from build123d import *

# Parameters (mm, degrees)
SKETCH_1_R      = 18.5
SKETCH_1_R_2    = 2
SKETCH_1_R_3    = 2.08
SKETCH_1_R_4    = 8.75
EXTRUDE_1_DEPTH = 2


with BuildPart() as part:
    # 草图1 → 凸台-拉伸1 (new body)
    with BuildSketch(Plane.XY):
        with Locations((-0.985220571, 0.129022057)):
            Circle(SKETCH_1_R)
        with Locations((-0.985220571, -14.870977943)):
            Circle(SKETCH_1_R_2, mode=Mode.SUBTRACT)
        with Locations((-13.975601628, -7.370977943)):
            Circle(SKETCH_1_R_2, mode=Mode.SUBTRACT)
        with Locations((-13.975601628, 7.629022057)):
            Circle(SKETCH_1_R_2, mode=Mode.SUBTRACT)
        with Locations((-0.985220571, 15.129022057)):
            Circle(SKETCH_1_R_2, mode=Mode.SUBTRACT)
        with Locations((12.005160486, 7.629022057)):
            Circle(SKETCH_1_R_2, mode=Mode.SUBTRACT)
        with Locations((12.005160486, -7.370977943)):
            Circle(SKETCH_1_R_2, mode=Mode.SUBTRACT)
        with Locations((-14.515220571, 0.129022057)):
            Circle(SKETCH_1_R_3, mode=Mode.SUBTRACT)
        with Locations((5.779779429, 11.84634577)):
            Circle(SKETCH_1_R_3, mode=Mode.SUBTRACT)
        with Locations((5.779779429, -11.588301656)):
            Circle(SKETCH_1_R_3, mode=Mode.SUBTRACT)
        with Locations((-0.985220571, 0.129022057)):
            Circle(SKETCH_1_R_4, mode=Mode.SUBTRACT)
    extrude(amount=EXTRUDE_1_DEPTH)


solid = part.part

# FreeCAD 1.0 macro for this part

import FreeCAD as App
import Part
import Sketcher
from FreeCAD import Vector

doc = App.newDocument("Part")
body = doc.addObject("PartDesign::Body", "Body")

# Sketch on XY plane
sketch1 = body.newObject("Sketcher::SketchObject", "Sketch")
sketch1.AttachmentSupport = (doc.getObject("XY_Plane"), [""])
sketch1.MapMode = "FlatFace"
sketch1.addGeometry([
    Part.Circle(Vector(-0.985221, 0.129022, 0), Vector(0, 0, 1), 18.5),  # 0
    Part.Circle(Vector(-13.975602, -7.370978, 0), Vector(0, 0, 1), 2),  # 1
    Part.Circle(Vector(-0.985221, -14.870978, 0), Vector(0, 0, 1), 2),  # 2
    Part.Circle(Vector(5.779779, -11.588302, 0), Vector(0, 0, 1), 2.08),  # 3
    Part.Circle(Vector(12.00516, -7.370978, 0), Vector(0, 0, 1), 2),  # 4
    Part.Circle(Vector(-14.515221, 0.129022, 0), Vector(0, 0, 1), 2.08),  # 5
    Part.Circle(Vector(-13.975602, 7.629022, 0), Vector(0, 0, 1), 2),  # 6
    Part.Circle(Vector(-0.985221, 0.129022, 0), Vector(0, 0, 1), 8.75),  # 7
    Part.Circle(Vector(12.00516, 7.629022, 0), Vector(0, 0, 1), 2),  # 8
    Part.Circle(Vector(5.779779, 11.846346, 0), Vector(0, 0, 1), 2.08),  # 9
    Part.Circle(Vector(-0.985221, 15.129022, 0), Vector(0, 0, 1), 2),  # 10
], False)
sketch1.addConstraint([
    Sketcher.Constraint("Coincident", 7, 3, 0, 3),
    Sketcher.Constraint("Equal", 1, 2),
    Sketcher.Constraint("Equal", 2, 4),
    Sketcher.Constraint("Equal", 3, 5),
    Sketcher.Constraint("Equal", 4, 6),
    Sketcher.Constraint("Equal", 6, 8),
    Sketcher.Constraint("Equal", 5, 9),
    Sketcher.Constraint("Equal", 8, 10),
    Sketcher.Constraint("Horizontal", 1, 3, 4, 3),
    Sketcher.Constraint("Horizontal", 0, 3, 5, 3),
    Sketcher.Constraint("Horizontal", 6, 3, 8, 3),
    Sketcher.Constraint("Vertical", 0, 3, 2, 3),
    Sketcher.Constraint("Vertical", 1, 3, 6, 3),
    Sketcher.Constraint("Vertical", 4, 3, 8, 3),
    Sketcher.Constraint("Vertical", 3, 3, 9, 3),
    Sketcher.Constraint("Vertical", 7, 3, 10, 3),
    Sketcher.Constraint("Diameter", 0, 37.0),
    Sketcher.Constraint("Diameter", 1, 4.0),
    Sketcher.Constraint("Diameter", 7, 17.5),
    Sketcher.Constraint("Diameter", 3, 4.16),
    Sketcher.Constraint("DistanceY", 2, 3, 0, 3, 15.0),
    Sketcher.Constraint("DistanceY", 1, 3, 6, 3, 15.0),
    Sketcher.Constraint("DistanceY", 0, 3, 10, 3, 15.0),
    Sketcher.Constraint("DistanceY", 1, 3, 0, 3, 7.5),
    Sketcher.Constraint("DistanceX", 5, 3, 0, 3, 13.53),
    Sketcher.Constraint("DistanceX", 2, 3, 3, 3, 6.765),
    Sketcher.Constraint("DistanceX", 1, 3, -1, 1, 13.975602),
    Sketcher.Constraint("DistanceY", 3, 3, -1, 1, 11.588302),
    Sketcher.Constraint("DistanceX", 0, 3, -1, 1, 0.985221),
    Sketcher.Constraint("DistanceX", -1, 1, 4, 3, 12.00516),
    Sketcher.Constraint("DistanceY", -1, 1, 0, 3, 0.129022),
    Sketcher.Constraint("DistanceY", -1, 1, 9, 3, 11.846346),
])
pad1 = body.newObject("PartDesign::Pad", "Pad")
pad1.Profile = sketch1
pad1.Length = 2

doc.recompute()
